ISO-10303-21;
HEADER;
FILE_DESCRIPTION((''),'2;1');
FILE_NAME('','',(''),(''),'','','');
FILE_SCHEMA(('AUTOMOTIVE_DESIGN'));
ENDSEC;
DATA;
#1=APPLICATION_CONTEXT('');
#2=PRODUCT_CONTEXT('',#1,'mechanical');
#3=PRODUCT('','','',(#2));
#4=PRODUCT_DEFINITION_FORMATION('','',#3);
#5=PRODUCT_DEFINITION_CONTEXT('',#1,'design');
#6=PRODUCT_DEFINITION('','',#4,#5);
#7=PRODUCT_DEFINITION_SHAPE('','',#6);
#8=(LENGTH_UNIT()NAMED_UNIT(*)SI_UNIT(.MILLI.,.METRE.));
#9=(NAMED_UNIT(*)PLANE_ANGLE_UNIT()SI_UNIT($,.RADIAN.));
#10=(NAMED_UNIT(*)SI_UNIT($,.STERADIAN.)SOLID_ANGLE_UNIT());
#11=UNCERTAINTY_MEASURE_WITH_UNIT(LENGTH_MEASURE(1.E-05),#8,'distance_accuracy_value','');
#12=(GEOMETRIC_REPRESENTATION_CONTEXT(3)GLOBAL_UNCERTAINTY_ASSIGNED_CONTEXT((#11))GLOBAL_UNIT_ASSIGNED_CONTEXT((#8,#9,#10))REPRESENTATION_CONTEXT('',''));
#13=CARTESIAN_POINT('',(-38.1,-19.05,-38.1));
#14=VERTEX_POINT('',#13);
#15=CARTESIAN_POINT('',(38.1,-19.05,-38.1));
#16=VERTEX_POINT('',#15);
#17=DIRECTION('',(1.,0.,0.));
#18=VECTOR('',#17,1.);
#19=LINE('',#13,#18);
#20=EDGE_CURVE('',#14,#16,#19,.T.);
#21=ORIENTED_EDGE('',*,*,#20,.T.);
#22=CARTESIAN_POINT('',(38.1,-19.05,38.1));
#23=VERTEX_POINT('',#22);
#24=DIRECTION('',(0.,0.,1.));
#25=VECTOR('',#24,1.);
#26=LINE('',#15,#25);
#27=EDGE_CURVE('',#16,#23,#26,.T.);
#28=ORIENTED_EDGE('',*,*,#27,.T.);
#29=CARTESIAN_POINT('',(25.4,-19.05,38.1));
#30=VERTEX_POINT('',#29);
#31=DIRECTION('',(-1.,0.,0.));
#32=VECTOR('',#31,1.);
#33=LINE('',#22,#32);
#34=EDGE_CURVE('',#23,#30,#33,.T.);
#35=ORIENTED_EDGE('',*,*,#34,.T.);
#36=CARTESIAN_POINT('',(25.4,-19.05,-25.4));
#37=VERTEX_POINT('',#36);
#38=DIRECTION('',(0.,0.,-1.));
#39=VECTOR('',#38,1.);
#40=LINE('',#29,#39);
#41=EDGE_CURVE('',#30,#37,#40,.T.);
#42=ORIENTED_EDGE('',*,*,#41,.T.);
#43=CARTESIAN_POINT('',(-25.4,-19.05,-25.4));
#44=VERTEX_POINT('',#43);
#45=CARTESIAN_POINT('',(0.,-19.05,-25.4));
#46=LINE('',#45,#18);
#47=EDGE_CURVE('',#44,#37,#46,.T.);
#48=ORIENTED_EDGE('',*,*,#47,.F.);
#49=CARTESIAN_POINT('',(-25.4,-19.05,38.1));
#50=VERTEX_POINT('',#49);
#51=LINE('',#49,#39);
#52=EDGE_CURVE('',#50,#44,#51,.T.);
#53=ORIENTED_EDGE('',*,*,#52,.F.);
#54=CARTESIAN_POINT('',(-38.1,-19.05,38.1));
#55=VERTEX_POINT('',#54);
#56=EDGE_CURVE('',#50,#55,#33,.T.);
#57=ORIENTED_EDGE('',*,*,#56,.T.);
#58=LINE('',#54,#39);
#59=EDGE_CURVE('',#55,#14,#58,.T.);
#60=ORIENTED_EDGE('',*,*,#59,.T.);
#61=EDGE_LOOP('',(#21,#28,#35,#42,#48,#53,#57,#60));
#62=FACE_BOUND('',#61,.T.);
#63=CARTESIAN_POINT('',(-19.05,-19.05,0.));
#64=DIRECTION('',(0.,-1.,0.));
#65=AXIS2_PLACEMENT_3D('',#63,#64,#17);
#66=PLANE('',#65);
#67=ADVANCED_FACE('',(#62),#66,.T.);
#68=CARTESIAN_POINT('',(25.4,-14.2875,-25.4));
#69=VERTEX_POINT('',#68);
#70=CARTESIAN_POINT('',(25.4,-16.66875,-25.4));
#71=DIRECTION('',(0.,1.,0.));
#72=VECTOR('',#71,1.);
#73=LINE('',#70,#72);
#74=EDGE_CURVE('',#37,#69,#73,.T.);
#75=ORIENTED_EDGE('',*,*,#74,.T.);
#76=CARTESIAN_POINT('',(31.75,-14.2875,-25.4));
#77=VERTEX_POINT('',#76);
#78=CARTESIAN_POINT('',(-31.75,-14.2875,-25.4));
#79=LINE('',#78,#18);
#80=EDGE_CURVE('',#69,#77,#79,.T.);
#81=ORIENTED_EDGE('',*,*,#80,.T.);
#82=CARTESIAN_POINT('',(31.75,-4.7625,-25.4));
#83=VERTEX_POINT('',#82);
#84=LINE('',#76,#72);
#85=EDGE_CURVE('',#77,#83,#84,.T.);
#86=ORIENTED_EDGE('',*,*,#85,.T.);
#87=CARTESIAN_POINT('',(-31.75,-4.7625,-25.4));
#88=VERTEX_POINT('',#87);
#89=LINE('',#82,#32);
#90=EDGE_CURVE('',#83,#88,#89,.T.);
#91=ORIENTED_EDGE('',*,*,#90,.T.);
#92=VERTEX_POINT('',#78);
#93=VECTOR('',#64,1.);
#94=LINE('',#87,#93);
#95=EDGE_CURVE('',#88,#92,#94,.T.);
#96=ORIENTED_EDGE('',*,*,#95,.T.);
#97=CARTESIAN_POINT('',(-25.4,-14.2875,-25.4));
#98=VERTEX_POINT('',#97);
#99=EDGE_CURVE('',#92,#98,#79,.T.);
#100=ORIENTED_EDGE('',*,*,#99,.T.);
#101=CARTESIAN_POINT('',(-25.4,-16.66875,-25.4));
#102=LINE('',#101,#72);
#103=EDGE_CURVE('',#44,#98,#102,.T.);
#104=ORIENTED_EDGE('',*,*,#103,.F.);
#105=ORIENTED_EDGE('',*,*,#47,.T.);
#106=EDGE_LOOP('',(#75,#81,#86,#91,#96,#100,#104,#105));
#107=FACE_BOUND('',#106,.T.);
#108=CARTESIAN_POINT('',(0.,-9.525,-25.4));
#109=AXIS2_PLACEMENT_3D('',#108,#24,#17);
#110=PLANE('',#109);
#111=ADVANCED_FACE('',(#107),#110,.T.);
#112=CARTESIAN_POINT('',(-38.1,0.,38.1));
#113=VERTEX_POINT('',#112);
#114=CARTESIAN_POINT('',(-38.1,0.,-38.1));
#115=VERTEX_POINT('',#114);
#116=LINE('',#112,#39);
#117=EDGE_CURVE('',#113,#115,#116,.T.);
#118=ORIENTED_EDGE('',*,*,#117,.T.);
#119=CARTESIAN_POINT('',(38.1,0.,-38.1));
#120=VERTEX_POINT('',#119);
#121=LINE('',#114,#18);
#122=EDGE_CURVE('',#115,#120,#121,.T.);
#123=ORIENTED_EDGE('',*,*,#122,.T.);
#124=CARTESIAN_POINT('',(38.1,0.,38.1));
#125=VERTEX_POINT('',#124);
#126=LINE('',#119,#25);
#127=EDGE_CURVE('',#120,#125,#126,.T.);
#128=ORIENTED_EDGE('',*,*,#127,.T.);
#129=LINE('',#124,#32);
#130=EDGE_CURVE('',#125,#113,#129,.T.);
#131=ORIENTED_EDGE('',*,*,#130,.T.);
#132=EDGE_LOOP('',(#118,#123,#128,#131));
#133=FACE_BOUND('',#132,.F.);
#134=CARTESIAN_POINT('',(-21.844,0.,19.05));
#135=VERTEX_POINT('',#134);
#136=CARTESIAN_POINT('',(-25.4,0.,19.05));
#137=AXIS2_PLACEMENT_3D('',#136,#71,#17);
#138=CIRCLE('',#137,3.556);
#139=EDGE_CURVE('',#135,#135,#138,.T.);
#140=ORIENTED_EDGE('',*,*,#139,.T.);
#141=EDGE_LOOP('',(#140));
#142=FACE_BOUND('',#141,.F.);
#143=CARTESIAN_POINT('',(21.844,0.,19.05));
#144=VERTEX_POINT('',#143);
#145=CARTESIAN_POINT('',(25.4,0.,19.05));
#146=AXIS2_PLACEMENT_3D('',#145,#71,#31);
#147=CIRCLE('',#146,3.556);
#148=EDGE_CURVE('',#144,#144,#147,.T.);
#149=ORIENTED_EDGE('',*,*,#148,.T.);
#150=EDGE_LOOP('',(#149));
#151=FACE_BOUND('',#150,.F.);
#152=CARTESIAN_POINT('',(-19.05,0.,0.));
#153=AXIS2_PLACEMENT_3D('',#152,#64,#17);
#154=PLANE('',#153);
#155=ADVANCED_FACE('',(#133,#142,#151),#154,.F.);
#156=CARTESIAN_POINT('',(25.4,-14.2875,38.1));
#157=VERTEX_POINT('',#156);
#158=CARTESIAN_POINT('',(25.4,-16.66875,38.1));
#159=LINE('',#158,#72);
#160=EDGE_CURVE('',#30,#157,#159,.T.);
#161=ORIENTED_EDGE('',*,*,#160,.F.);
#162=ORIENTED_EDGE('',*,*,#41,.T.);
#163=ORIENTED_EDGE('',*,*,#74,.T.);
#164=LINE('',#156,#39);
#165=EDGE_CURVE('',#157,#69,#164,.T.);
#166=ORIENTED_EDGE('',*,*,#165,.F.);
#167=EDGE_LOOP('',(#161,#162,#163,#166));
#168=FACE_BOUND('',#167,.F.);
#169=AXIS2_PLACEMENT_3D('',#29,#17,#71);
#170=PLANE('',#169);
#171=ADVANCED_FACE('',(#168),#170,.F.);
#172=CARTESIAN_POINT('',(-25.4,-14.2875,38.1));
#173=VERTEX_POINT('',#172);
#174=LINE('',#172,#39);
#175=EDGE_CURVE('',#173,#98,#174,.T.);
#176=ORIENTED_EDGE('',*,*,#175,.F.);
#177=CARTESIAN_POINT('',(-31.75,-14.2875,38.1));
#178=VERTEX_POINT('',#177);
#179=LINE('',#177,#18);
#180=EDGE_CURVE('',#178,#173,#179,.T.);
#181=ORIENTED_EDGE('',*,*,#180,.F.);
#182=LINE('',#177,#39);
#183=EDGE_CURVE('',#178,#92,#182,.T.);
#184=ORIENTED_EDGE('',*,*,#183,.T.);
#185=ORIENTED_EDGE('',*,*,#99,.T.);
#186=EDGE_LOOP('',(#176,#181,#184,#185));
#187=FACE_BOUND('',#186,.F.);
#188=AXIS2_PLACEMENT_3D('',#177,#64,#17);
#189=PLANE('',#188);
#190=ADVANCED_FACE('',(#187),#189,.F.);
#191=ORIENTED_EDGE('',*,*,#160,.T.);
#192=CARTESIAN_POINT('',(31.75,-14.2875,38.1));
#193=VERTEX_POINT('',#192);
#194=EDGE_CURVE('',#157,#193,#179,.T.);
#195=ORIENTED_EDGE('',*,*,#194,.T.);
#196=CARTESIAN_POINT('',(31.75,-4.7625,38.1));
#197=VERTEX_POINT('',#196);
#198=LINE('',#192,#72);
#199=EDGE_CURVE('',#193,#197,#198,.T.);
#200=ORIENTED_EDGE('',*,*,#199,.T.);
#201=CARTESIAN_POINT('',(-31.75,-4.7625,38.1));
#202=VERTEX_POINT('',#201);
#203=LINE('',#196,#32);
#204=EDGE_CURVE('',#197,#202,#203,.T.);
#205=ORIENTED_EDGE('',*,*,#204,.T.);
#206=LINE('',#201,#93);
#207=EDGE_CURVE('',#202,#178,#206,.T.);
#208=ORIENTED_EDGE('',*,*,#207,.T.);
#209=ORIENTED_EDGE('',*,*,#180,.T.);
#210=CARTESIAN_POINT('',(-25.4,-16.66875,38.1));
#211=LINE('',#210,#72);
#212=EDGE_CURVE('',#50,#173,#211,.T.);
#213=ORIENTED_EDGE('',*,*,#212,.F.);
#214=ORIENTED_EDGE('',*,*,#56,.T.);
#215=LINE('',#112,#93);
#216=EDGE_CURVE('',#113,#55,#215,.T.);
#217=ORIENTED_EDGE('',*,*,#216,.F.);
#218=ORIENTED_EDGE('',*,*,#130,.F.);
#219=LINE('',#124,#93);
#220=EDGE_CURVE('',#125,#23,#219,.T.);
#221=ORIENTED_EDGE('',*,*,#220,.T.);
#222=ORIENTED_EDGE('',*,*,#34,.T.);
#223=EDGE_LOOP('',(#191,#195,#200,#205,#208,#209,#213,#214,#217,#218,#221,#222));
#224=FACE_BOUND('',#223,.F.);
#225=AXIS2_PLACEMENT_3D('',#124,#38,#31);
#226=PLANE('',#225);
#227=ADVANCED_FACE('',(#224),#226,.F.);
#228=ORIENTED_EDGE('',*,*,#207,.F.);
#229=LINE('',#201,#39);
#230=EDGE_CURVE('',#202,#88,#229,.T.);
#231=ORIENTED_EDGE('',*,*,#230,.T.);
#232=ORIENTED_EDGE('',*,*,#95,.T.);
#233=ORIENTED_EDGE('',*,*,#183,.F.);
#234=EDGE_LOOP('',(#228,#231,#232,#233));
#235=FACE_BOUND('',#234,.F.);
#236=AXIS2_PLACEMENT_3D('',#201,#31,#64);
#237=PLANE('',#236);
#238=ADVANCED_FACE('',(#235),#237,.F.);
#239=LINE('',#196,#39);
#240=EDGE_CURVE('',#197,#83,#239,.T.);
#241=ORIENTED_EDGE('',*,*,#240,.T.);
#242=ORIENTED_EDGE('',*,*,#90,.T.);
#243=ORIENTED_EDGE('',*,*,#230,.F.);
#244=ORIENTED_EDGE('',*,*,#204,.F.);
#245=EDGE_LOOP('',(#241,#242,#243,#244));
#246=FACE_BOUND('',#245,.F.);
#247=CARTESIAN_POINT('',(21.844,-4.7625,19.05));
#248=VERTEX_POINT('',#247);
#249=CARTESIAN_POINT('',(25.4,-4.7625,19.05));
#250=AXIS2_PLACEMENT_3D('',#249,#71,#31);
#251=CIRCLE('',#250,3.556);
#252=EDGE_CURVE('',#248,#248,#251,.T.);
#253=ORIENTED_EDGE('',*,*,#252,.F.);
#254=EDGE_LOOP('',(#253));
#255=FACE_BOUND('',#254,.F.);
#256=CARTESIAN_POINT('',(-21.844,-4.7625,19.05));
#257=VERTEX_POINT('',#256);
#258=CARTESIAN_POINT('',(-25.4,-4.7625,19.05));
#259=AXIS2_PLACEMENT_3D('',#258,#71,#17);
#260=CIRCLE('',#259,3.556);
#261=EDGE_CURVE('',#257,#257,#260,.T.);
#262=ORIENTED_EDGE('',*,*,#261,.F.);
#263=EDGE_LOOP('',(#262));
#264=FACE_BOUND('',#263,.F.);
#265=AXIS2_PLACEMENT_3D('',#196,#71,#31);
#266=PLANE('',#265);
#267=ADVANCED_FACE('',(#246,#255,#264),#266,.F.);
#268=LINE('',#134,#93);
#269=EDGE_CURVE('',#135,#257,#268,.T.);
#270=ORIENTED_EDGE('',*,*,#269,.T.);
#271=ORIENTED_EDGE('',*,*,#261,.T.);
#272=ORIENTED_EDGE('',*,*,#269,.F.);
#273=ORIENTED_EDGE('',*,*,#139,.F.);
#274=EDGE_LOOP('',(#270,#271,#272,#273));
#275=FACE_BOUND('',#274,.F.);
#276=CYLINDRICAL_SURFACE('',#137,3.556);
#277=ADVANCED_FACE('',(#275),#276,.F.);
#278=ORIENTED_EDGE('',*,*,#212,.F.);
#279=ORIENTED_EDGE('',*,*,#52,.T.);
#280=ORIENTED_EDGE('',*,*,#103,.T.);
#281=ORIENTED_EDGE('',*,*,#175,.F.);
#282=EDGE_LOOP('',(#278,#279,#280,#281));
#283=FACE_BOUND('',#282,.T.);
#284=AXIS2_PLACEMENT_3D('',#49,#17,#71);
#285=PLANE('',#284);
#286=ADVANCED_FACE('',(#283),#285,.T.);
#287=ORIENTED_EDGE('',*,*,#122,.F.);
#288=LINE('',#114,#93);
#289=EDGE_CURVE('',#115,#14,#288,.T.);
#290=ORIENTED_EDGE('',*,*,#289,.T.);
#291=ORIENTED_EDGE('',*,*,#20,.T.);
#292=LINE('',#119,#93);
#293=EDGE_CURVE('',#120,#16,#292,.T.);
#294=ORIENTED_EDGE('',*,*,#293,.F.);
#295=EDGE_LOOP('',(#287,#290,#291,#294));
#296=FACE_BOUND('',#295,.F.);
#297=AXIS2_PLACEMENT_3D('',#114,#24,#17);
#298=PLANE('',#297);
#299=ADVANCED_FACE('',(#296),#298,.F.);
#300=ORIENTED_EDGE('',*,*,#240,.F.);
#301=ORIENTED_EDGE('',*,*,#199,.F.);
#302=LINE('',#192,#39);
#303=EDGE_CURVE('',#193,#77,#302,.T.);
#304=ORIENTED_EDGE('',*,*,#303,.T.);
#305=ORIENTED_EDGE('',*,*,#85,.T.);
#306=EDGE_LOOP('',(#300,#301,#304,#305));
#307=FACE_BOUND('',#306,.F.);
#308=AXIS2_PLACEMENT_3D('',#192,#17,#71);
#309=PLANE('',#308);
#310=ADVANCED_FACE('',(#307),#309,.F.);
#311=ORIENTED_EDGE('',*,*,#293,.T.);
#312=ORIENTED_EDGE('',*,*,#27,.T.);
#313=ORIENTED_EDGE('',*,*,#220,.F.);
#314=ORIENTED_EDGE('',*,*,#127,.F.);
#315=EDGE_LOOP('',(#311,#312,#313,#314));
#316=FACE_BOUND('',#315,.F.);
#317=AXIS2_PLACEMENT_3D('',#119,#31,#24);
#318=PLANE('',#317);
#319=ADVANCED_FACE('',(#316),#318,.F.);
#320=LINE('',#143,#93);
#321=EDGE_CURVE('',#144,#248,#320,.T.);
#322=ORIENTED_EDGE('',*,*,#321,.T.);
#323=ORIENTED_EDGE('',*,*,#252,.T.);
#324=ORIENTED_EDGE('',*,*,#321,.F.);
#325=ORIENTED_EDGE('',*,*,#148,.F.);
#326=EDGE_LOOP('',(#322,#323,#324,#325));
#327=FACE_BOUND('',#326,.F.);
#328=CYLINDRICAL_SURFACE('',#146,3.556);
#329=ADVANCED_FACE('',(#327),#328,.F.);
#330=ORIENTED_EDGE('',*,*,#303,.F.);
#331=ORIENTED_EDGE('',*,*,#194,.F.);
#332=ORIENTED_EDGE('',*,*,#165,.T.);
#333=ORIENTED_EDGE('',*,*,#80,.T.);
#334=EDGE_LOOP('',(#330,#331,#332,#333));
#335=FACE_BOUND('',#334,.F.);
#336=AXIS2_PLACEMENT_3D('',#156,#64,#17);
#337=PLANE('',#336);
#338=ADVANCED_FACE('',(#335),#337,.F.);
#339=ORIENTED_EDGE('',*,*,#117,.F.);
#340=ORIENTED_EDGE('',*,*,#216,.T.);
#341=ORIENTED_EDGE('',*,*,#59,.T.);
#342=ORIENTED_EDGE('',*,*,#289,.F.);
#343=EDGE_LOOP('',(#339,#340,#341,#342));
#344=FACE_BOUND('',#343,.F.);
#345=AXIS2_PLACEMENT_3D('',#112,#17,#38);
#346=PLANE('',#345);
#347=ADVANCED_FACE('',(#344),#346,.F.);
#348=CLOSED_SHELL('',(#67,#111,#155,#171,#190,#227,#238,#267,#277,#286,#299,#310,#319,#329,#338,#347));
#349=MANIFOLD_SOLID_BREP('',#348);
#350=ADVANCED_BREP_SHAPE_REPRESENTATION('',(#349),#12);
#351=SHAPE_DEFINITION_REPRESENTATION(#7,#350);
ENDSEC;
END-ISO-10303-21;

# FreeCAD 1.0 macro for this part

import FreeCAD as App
import Part
import Sketcher
Q = App.Units.Quantity

doc = App.newDocument("Part")
body = doc.addObject("PartDesign::Body", "Body")

sketch1 = doc.addObject("Sketcher::SketchObject", "Sketch")
body.addObject(sketch1)
sketch1.AttachmentSupport = (doc.XZ_Plane, [""])
sketch1.MapMode = "FlatFace"
sketch1.addGeometry([
    Part.LineSegment(App.Vector(-38.1, 38.1, 0), App.Vector(-38.1, -38.1, 0)),
    Part.LineSegment(App.Vector(-38.1, -38.1, 0), App.Vector(38.1, -38.1, 0)),
    Part.LineSegment(App.Vector(38.1, -38.1, 0), App.Vector(38.1, 38.1, 0)),
    Part.LineSegment(App.Vector(38.1, 38.1, 0), App.Vector(-38.1, 38.1, 0)),
], False)
sketch1.addConstraint([
    Sketcher.Constraint("Coincident", 0, 2, 1, 1),
    Sketcher.Constraint("Coincident", 1, 2, 2, 1),
    Sketcher.Constraint("Coincident", 2, 2, 3, 1),
    Sketcher.Constraint("Coincident", 3, 2, 0, 1),
    Sketcher.Constraint("Vertical", 0),
    Sketcher.Constraint("Horizontal", 1),
    Sketcher.Constraint("Vertical", 2),
    Sketcher.Constraint("Horizontal", 3),
    Sketcher.Constraint("Symmetric", 0, 2, 2, 2, -1, 1),
    Sketcher.Constraint("Equal", 3, 0),
    Sketcher.Constraint("DistanceX", 1, 1, 1, 2, Q("3 in")),
])
pad1 = doc.addObject("PartDesign::Pad", "Pad")
body.addObject(pad1)
pad1.Profile = sketch1
pad1.Length = Q("0.75 in")

sketch2 = doc.addObject("Sketcher::SketchObject", "Sketch001")
body.addObject(sketch2)
sketch2.AttachmentSupport = (doc.XY_Plane, [""])
sketch2.MapMode = "FlatFace"
sketch2.AttachmentOffset = App.Placement(App.Vector(0, 0, 1.5 * 25.4), App.Rotation())
sketch2.addGeometry([
    Part.LineSegment(App.Vector(31.75, -14.2875, 0), App.Vector(31.75, -4.7625, 0)),
    Part.LineSegment(App.Vector(31.75, -4.7625, 0), App.Vector(-31.75, -4.7625, 0)),
    Part.LineSegment(App.Vector(-31.75, -4.7625, 0), App.Vector(-31.75, -14.2875, 0)),
    Part.LineSegment(App.Vector(-31.75, -14.2875, 0), App.Vector(-25.4, -14.2875, 0)),
    Part.LineSegment(App.Vector(-25.4, -14.2875, 0), App.Vector(-25.4, -19.05, 0)),
    Part.LineSegment(App.Vector(-25.4, -19.05, 0), App.Vector(25.4, -19.05, 0)),
    Part.LineSegment(App.Vector(25.4, -19.05, 0), App.Vector(25.4, -14.2875, 0)),
    Part.LineSegment(App.Vector(25.4, -14.2875, 0), App.Vector(31.75, -14.2875, 0)),
], False)
sketch2.addConstraint([
    Sketcher.Constraint("Coincident", 0, 2, 1, 1),
    Sketcher.Constraint("Coincident", 1, 2, 2, 1),
    Sketcher.Constraint("Coincident", 2, 2, 3, 1),
    Sketcher.Constraint("Coincident", 3, 2, 4, 1),
    Sketcher.Constraint("Coincident", 4, 2, 5, 1),
    Sketcher.Constraint("Coincident", 5, 2, 6, 1),
    Sketcher.Constraint("Coincident", 6, 2, 7, 1),
    Sketcher.Constraint("Coincident", 7, 2, 0, 1),
    Sketcher.Constraint("Vertical", 0),
    Sketcher.Constraint("Horizontal", 1),
    Sketcher.Constraint("Vertical", 2),
    Sketcher.Constraint("Horizontal", 3),
    Sketcher.Constraint("Vertical", 4),
    Sketcher.Constraint("Horizontal", 5),
    Sketcher.Constraint("Vertical", 6),
    Sketcher.Constraint("Horizontal", 7),
    Sketcher.Constraint("Symmetric", 3, 2, 6, 2, -2),
    Sketcher.Constraint("Equal", 3, 7),
    Sketcher.Constraint("DistanceX", 5, 1, 5, 2, Q("2 in")),
    Sketcher.Constraint("DistanceX", 1, 2, 1, 1, Q("2.5 in")),
    Sketcher.Constraint("DistanceY", 0, 1, 0, 2, Q("0.375 in")),
    Sketcher.Constraint("DistanceY", 4, 2, 4, 1, Q("0.1875 in")),
    Sketcher.Constraint("DistanceY", 4, 2, -1, 1, Q("0.75 in")),
])
pocket1 = doc.addObject("PartDesign::Pocket", "Pocket")
body.addObject(pocket1)
pocket1.Profile = sketch2
pocket1.Length = Q("2.5 in")

sketch3 = doc.addObject("Sketcher::SketchObject", "Sketch002")
body.addObject(sketch3)
sketch3.AttachmentSupport = (doc.XZ_Plane, [""])
sketch3.MapMode = "FlatFace"
sketch3.addGeometry([
    Part.Circle(App.Vector(25.4, 19.05, 0), App.Vector(0, 0, 1), 3.556),
    Part.Circle(App.Vector(-25.4, 19.05, 0), App.Vector(0, 0, 1), 3.556),
], False)
sketch3.addConstraint([
    Sketcher.Constraint("Equal", 0, 1),
    Sketcher.Constraint("Symmetric", 0, 3, 1, 3, -2),
    Sketcher.Constraint("Diameter", 0, Q("0.28 in")),
    Sketcher.Constraint("DistanceX", -1, 1, 0, 3, Q("1 in")),
    Sketcher.Constraint("DistanceY", -1, 1, 0, 3, Q("0.75 in")),
])
pocket2 = doc.addObject("PartDesign::Pocket", "Pocket001")
body.addObject(pocket2)
pocket2.Profile = sketch3
pocket2.Length = Q("0.4 in")
pocket2.Reversed = True

doc.recompute()
